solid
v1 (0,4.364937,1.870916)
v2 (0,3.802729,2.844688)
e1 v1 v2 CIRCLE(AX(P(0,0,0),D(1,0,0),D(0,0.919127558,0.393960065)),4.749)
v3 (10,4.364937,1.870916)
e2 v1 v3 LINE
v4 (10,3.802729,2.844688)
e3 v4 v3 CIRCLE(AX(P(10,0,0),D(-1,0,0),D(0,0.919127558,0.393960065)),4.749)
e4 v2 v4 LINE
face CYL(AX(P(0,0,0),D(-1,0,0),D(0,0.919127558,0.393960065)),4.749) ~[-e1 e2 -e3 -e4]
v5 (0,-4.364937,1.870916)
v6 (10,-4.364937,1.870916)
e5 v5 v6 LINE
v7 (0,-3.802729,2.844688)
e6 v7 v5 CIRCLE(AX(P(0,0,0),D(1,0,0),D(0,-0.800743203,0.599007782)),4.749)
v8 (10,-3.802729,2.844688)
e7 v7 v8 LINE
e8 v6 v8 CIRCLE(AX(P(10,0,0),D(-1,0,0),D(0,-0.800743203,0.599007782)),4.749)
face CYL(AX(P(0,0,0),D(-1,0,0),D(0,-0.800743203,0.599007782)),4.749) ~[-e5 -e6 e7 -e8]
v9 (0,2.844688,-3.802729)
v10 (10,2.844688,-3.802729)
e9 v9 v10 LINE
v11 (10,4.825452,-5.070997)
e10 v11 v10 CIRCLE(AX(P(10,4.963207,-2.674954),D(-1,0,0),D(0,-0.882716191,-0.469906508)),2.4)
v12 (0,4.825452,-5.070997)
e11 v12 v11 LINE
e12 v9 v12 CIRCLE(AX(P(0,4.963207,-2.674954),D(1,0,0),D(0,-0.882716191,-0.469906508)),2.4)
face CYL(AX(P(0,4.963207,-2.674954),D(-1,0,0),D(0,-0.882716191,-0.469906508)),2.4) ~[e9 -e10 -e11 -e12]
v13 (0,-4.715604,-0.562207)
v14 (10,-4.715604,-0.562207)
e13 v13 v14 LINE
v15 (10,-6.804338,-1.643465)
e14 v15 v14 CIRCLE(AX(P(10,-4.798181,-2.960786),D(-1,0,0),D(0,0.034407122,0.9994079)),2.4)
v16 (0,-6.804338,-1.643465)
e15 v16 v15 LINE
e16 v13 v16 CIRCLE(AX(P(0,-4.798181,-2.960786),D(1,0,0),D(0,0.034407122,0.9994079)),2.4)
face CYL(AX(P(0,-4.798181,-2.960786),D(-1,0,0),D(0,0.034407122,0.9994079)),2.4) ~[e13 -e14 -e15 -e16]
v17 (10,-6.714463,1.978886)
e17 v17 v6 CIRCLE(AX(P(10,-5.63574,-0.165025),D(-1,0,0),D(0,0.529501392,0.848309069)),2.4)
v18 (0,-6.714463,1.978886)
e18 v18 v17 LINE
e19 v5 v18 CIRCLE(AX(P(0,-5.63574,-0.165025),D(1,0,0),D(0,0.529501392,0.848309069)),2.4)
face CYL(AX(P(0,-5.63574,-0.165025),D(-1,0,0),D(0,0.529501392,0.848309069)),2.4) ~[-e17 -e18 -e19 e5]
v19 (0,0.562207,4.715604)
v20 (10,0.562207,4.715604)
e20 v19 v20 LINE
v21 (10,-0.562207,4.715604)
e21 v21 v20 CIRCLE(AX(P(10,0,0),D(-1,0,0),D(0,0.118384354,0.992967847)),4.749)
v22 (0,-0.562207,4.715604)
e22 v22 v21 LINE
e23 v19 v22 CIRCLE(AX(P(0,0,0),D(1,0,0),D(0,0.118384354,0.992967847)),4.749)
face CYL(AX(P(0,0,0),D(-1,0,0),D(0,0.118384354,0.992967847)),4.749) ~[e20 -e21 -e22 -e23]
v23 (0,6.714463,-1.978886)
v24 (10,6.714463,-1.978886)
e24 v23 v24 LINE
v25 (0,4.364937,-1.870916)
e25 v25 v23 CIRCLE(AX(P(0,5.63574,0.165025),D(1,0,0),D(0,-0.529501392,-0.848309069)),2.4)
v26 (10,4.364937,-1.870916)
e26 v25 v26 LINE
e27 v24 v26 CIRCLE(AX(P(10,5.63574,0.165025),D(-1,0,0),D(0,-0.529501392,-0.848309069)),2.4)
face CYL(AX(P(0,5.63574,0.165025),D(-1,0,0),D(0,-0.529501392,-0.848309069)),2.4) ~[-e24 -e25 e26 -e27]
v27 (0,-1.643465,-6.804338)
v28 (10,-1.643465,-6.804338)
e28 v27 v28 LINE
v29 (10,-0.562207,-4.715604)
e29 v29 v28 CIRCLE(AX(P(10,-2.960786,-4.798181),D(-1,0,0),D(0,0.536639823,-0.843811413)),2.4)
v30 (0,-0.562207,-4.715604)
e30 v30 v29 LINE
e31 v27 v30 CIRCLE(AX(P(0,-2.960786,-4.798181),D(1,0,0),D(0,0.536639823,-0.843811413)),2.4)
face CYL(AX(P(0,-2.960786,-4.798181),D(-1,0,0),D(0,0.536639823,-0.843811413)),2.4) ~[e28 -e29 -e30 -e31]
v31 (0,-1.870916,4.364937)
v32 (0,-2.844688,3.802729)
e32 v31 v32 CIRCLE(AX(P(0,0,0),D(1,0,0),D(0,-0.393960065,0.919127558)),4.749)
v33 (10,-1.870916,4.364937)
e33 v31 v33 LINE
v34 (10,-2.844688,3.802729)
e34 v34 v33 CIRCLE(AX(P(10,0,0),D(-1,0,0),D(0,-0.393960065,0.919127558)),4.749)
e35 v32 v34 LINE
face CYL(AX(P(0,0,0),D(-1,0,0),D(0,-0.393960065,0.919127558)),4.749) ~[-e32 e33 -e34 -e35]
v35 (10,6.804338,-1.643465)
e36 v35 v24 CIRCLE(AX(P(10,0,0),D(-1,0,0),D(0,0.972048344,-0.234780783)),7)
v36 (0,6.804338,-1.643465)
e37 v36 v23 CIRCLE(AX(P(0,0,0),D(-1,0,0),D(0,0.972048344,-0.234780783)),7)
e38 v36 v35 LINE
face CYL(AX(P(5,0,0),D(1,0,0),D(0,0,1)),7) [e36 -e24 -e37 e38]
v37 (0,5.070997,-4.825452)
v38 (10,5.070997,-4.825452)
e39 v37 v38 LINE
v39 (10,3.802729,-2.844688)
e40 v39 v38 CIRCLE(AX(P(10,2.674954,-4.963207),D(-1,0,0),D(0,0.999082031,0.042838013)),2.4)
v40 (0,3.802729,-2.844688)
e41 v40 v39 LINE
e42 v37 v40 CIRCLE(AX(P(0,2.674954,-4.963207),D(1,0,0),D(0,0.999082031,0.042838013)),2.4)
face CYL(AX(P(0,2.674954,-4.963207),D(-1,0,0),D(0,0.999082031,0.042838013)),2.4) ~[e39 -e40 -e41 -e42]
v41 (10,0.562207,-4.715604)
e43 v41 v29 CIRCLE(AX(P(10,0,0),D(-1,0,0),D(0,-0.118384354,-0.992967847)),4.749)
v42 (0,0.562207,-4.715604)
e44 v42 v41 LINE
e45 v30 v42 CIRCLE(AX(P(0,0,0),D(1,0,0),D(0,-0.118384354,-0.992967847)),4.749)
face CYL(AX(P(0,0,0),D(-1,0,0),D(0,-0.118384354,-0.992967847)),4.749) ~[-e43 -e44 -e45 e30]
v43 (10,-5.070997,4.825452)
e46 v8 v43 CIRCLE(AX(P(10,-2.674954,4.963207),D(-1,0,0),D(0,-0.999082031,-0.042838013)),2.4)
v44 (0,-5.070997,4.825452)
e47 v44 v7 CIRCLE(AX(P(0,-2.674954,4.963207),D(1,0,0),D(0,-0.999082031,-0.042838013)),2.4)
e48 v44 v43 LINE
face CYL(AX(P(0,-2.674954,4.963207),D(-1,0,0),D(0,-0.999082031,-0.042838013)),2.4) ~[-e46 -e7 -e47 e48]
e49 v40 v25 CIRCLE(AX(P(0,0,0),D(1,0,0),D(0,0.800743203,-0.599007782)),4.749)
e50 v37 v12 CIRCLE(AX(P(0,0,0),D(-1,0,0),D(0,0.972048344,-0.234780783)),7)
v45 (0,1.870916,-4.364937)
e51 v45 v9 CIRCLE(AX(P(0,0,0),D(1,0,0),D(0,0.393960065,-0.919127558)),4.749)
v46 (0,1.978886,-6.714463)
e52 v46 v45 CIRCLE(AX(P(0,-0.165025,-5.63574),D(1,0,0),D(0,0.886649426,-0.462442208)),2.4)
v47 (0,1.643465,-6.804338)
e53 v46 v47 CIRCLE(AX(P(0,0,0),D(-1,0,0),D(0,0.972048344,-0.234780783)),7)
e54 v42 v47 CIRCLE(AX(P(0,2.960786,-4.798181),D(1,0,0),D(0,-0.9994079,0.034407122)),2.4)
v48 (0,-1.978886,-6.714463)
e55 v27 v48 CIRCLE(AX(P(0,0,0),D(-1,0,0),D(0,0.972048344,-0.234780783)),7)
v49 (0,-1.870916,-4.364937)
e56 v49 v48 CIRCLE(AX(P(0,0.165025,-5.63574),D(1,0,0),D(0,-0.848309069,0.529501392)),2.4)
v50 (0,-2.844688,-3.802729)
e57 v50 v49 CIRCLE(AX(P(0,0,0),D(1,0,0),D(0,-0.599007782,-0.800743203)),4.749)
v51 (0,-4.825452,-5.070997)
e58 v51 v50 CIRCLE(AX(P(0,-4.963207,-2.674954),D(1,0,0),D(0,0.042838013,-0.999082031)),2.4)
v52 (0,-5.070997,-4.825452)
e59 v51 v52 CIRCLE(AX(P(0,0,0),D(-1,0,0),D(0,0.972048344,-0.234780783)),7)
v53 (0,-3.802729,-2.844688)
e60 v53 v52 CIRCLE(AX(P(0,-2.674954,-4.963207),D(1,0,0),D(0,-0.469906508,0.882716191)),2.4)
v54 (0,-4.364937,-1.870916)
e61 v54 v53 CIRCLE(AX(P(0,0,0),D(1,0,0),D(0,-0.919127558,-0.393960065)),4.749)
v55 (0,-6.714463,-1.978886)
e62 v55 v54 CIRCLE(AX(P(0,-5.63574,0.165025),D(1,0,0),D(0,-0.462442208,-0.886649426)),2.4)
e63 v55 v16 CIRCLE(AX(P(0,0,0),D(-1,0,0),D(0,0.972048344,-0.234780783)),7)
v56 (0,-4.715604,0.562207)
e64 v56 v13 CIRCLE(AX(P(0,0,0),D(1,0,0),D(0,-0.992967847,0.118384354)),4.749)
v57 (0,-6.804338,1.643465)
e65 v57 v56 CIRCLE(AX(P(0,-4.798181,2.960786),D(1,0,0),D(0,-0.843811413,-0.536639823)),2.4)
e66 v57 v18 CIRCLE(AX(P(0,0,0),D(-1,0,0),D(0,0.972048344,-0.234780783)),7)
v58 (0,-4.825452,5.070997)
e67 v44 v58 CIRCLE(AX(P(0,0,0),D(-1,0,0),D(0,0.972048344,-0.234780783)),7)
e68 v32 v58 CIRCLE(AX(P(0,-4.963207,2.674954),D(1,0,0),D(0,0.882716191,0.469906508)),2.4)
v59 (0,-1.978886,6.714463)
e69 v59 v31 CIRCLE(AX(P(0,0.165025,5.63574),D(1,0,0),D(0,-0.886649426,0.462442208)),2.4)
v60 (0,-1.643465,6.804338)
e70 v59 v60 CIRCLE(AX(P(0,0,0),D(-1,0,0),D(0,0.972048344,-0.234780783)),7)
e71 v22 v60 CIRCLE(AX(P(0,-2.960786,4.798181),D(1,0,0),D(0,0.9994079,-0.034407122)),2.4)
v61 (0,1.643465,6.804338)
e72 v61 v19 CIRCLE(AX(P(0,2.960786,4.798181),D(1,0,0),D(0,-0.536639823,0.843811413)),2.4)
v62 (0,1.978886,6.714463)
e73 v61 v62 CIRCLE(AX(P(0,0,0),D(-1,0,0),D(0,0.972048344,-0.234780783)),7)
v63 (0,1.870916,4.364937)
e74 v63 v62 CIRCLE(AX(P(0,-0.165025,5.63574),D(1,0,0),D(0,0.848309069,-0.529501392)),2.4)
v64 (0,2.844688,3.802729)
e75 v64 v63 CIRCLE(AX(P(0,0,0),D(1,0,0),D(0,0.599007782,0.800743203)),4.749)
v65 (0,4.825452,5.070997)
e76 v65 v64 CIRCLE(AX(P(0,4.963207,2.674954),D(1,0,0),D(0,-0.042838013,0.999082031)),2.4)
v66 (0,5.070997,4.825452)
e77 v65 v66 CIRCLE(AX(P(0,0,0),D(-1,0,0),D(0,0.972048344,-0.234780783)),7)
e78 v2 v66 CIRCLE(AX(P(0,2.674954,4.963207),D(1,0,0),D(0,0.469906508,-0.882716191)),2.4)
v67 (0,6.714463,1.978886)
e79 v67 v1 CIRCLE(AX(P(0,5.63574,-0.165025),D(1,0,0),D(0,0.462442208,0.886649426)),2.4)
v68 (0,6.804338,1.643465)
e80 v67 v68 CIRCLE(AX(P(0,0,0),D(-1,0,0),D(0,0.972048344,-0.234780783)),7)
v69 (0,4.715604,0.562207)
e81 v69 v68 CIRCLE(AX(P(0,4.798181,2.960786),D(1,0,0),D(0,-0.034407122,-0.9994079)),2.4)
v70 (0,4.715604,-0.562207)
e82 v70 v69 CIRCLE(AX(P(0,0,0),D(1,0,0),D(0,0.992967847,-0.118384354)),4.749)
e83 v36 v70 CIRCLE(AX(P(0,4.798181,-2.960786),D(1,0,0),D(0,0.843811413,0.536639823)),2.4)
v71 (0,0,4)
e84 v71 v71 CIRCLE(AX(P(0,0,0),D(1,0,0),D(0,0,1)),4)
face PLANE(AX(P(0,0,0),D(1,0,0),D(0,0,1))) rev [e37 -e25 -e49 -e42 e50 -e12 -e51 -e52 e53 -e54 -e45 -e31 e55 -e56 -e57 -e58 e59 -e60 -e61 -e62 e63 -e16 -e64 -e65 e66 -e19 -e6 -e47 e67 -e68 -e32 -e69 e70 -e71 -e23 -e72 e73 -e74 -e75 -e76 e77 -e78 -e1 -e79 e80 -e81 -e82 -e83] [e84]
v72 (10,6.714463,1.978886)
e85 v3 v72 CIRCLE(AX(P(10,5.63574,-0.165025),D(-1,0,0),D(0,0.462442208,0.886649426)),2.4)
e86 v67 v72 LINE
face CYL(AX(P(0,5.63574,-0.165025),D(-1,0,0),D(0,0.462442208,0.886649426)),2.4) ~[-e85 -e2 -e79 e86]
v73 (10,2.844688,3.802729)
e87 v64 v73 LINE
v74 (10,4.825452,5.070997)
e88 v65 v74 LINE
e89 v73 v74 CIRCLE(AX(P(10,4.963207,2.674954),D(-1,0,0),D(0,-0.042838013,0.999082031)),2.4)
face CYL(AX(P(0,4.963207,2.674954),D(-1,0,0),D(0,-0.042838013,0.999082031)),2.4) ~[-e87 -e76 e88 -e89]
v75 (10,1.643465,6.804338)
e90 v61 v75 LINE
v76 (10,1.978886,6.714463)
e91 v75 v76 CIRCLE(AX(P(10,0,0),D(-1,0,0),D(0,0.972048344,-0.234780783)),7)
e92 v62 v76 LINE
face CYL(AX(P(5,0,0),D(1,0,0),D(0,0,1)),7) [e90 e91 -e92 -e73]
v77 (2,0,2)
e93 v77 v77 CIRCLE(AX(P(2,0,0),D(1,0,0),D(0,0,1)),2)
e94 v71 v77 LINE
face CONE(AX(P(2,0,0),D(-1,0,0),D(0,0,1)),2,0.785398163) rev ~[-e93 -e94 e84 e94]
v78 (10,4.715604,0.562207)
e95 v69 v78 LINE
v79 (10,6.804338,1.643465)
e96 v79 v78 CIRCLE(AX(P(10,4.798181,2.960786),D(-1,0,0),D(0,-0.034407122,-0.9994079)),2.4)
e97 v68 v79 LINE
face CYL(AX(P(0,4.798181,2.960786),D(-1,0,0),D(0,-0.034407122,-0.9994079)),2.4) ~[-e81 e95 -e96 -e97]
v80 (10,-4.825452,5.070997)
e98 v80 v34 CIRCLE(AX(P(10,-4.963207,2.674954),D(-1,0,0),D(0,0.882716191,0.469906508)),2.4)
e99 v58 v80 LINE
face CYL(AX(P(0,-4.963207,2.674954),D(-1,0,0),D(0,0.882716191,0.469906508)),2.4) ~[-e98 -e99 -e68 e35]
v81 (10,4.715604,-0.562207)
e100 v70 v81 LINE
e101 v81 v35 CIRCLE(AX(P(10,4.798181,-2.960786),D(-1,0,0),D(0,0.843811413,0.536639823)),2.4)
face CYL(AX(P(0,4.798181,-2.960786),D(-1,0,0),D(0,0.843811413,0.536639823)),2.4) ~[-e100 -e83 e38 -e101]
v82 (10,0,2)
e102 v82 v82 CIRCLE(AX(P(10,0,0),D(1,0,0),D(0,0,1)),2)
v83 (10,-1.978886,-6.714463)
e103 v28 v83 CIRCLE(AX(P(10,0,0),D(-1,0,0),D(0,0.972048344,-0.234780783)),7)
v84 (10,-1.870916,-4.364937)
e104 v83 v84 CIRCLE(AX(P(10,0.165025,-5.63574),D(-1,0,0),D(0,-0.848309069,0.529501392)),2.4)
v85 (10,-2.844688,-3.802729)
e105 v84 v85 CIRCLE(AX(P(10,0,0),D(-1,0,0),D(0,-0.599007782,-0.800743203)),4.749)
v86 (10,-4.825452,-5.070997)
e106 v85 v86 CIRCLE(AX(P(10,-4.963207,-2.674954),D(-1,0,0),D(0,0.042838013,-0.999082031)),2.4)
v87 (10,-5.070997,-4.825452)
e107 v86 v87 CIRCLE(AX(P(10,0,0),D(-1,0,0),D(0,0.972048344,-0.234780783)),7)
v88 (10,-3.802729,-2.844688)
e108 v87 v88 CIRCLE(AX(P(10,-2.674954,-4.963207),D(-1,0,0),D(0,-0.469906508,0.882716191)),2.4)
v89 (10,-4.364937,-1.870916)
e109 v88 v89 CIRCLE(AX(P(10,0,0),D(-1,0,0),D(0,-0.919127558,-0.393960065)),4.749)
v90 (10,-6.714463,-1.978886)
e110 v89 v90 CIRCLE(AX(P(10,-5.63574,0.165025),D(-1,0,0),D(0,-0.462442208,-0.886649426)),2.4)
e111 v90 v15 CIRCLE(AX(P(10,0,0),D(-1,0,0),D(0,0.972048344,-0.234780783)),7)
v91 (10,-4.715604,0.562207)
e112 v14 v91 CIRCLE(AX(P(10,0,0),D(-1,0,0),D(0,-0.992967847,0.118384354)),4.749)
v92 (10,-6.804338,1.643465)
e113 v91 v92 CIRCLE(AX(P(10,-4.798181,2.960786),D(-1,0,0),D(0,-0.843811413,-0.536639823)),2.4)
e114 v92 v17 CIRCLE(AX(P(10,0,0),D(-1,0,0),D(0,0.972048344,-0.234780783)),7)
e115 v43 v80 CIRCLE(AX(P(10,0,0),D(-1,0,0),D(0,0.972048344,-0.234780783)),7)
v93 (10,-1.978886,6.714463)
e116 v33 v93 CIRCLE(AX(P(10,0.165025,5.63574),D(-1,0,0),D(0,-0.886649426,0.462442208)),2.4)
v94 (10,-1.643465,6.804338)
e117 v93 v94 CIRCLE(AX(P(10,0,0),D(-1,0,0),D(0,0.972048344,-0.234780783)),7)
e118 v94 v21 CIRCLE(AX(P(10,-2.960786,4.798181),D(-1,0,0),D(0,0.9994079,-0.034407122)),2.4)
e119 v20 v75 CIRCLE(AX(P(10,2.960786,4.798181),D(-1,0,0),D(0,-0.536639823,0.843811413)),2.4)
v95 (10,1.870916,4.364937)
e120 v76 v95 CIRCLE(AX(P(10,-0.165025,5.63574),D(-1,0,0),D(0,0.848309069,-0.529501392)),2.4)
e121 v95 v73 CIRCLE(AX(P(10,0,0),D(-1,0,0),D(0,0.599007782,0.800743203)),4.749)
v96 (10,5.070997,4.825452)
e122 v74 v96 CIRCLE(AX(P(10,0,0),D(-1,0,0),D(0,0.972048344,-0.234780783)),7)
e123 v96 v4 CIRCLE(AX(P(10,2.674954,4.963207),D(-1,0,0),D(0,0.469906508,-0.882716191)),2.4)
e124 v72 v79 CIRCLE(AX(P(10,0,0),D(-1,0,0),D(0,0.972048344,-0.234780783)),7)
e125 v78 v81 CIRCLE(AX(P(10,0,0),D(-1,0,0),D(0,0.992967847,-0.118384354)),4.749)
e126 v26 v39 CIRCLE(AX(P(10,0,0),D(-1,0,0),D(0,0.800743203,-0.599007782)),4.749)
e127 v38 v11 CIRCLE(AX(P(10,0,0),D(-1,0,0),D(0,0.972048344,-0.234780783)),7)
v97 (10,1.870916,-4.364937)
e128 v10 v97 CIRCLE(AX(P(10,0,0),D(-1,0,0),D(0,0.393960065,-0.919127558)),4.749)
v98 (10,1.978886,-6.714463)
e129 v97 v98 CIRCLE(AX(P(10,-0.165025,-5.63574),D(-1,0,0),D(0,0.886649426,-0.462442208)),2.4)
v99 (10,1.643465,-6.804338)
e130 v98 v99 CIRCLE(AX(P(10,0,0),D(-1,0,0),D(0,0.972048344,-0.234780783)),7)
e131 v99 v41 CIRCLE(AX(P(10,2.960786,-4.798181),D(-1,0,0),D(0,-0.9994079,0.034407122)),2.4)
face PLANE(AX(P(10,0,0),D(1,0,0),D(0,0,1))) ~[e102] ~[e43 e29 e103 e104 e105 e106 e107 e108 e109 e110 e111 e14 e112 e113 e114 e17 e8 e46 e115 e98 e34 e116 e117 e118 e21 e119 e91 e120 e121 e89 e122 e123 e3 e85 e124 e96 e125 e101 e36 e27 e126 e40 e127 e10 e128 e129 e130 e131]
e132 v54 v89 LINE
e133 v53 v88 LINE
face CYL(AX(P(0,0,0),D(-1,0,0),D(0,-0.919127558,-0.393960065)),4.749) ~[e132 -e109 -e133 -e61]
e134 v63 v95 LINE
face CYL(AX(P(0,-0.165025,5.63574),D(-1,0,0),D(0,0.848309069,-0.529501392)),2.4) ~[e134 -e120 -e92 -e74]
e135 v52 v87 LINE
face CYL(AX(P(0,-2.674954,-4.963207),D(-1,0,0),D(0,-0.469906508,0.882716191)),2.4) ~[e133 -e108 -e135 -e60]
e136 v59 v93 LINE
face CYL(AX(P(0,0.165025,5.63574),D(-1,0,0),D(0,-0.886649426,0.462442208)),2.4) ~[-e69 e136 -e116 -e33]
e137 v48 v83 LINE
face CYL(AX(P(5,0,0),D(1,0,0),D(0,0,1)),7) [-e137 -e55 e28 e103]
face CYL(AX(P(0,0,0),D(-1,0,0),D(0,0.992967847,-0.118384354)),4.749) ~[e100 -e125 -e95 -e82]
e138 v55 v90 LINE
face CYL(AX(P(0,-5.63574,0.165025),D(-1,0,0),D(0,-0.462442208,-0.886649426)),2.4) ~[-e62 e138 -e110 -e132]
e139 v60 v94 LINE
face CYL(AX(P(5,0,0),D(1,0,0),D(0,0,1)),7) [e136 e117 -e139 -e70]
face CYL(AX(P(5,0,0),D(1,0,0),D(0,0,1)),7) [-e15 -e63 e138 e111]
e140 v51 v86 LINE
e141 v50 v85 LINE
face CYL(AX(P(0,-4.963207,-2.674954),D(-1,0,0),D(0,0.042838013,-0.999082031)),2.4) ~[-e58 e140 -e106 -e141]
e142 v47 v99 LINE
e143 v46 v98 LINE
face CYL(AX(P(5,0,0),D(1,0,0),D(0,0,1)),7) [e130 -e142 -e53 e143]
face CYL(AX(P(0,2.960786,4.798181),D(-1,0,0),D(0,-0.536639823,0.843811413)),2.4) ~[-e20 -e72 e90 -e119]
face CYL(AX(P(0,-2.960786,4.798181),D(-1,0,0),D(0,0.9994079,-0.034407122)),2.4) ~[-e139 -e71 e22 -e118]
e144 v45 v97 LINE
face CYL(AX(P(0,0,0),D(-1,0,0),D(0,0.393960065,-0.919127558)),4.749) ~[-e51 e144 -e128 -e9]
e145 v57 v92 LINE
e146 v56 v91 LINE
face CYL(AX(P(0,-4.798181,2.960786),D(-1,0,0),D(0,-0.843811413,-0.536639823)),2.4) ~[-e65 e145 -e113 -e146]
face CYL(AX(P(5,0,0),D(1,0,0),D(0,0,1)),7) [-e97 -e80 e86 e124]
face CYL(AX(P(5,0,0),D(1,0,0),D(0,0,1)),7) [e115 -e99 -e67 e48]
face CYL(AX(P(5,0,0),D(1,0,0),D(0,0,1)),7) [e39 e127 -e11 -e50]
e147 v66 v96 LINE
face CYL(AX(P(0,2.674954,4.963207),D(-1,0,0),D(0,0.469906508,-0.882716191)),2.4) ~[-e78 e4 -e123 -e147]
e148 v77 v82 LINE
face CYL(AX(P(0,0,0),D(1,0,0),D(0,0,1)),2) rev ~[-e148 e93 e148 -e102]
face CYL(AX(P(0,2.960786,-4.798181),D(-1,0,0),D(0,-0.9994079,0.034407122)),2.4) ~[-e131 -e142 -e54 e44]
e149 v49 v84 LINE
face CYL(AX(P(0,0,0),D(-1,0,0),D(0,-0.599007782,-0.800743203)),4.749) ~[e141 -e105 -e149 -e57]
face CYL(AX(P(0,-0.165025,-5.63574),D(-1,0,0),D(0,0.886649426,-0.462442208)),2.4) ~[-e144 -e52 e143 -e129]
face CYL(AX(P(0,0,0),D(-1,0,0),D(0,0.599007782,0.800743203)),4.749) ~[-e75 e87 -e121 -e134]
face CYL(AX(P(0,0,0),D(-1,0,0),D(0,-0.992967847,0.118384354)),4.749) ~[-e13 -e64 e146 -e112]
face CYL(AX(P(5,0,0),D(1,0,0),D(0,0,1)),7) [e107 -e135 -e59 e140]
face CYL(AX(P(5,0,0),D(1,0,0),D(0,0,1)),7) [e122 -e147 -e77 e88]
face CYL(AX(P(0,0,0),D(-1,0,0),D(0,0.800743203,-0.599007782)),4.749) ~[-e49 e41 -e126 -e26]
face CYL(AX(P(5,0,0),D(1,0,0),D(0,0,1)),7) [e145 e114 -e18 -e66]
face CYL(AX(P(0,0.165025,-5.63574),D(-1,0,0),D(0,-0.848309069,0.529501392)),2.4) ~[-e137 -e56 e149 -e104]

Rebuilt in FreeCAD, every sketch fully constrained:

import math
import FreeCAD as App
import Part
import Sketcher
Q = App.Units.Quantity


def edges_at(feature, points):
    """Names of the edges that pass closest to the given points."""
    edges = feature.Shape.Edges
    near = lambda p: min(range(len(edges)), key=lambda i: edges[i].distToShape(Part.Vertex(*p))[0])
    return sorted({f"Edge{near(p) + 1}" for p in points})


def add_polygon(sketch, points):
    """Adds a closed chain of lines whose ends are joined by coincident constraints."""
    first, n = sketch.GeometryCount, len(points)
    for a, b in zip(points, points[1:] + points[:1]):
        sketch.addGeometry(Part.LineSegment(App.Vector(*a, 0), App.Vector(*b, 0)), False)
    for i in range(n):
        sketch.addConstraint(Sketcher.Constraint("Coincident", first + i, 2, first + (i + 1) % n, 1))

doc = App.newDocument("Part")
body = doc.addObject("PartDesign::Body", "Body")

# Sketch on XZ plane
sketch1 = body.newObject("Sketcher::SketchObject", "Sketch")
sketch1.AttachmentSupport = (doc.getObject("XZ_Plane"), [""])
sketch1.MapMode = "FlatFace"
add_polygon(sketch1, [(0, -7), (0, 0), (10, 0), (10, -7)])  # lines 0-3
sketch1.addConstraint([
    Sketcher.Constraint("Vertical", 0),
    Sketcher.Constraint("Horizontal", 1),
    Sketcher.Constraint("Vertical", 2),
    Sketcher.Constraint("Horizontal", 3),
    Sketcher.Constraint("Coincident", 0, 2, -1, 1),
    Sketcher.Constraint("DistanceX", 1, 1, 1, 2, Q("10 mm")),
    Sketcher.Constraint("DistanceY", 0, 1, 0, 2, Q("7 mm")),
])
revolution = body.newObject("PartDesign::Revolution", "Revolution")
revolution.Profile = sketch1
revolution.ReferenceAxis = (sketch1, ["H_Axis"])
revolution.Angle = 360

# Sketch on YZ plane
sketch2 = body.newObject("Sketcher::SketchObject", "Sketch001")
sketch2.AttachmentSupport = (doc.getObject("YZ_Plane"), [""])
sketch2.MapMode = "FlatFace"
sketch2.addGeometry([
    Part.ArcOfCircle(Part.Circle(App.Vector(0, 0, 0), App.Vector(0, 0, 1), 4.749), math.radians(-6.798868), math.radians(6.798868)),
    Part.ArcOfCircle(Part.Circle(App.Vector(4.798181, -2.960786, 0), App.Vector(0, 0, 1), 2.4), math.radians(32.455189), math.radians(91.971772)),
    Part.ArcOfCircle(Part.Circle(App.Vector(0, 0, 0), App.Vector(0, 0, 1), 7.0254), math.radians(-13.775292), math.radians(13.775292)),
    Part.ArcOfCircle(Part.Circle(App.Vector(4.798181, 2.960786, 0), App.Vector(0, 0, 1), 2.4), math.radians(-91.971772), math.radians(-32.455189)),
], False)
sketch2.addConstraint([
    Sketcher.Constraint("Coincident", 0, 1, 1, 2),
    Sketcher.Constraint("Coincident", 1, 1, 2, 1),
    Sketcher.Constraint("Coincident", 2, 2, 3, 2),
    Sketcher.Constraint("Coincident", 3, 1, 0, 2),
    Sketcher.Constraint("Coincident", 0, 3, -1, 1),
    Sketcher.Constraint("Coincident", 2, 3, -1, 1),
    Sketcher.Constraint("Equal", 1, 3),
    Sketcher.Constraint("Symmetric", 1, 3, 3, 3, -1),
    Sketcher.Constraint("Radius", 1, Q("2.4 mm")),
    Sketcher.Constraint("Radius", 0, Q("4.749 mm")),
    Sketcher.Constraint("Radius", 2, Q("7.0254 mm")),
    Sketcher.Constraint("DistanceY", 1, 1, 2, 2, Q("3.345701 mm")),
    Sketcher.Constraint("DistanceX", -1, 1, 1, 3, Q("4.798181 mm")),
])
pocket1 = body.newObject("PartDesign::Pocket", "Pocket")
pocket1.Profile = sketch2
pocket1.Type = "ThroughAll"
pocket1.Reversed = True
doc.recompute()

polarpattern = body.newObject("PartDesign::PolarPattern", "PolarPattern")
polarpattern.Originals = [pocket1]
polarpattern.Axis = (doc.getObject("X_Axis"), [""])
polarpattern.Angle = 360
polarpattern.Occurrences = 12
body.Tip = polarpattern

# Sketch on YZ plane
sketch3 = body.newObject("Sketcher::SketchObject", "Sketch002")
sketch3.AttachmentSupport = (doc.getObject("YZ_Plane"), [""])
sketch3.MapMode = "FlatFace"
sketch3.addGeometry(Part.Circle(App.Vector(0, 0, 0), App.Vector(0, 0, 1), 2), False)
sketch3.addConstraint([
    Sketcher.Constraint("Coincident", 0, 3, -1, 1),
    Sketcher.Constraint("Diameter", 0, Q("4 mm")),
])
pocket2 = body.newObject("PartDesign::Pocket", "Pocket001")
pocket2.Profile = sketch3
pocket2.Length = 100.000102
pocket2.Midplane = True
doc.recompute()

chamfer = body.newObject("PartDesign::Chamfer", "Chamfer")
chamfer.Base = (pocket2, edges_at(pocket2, [(0, 0, -2)]))
chamfer.Size = 2

doc.recompute()
